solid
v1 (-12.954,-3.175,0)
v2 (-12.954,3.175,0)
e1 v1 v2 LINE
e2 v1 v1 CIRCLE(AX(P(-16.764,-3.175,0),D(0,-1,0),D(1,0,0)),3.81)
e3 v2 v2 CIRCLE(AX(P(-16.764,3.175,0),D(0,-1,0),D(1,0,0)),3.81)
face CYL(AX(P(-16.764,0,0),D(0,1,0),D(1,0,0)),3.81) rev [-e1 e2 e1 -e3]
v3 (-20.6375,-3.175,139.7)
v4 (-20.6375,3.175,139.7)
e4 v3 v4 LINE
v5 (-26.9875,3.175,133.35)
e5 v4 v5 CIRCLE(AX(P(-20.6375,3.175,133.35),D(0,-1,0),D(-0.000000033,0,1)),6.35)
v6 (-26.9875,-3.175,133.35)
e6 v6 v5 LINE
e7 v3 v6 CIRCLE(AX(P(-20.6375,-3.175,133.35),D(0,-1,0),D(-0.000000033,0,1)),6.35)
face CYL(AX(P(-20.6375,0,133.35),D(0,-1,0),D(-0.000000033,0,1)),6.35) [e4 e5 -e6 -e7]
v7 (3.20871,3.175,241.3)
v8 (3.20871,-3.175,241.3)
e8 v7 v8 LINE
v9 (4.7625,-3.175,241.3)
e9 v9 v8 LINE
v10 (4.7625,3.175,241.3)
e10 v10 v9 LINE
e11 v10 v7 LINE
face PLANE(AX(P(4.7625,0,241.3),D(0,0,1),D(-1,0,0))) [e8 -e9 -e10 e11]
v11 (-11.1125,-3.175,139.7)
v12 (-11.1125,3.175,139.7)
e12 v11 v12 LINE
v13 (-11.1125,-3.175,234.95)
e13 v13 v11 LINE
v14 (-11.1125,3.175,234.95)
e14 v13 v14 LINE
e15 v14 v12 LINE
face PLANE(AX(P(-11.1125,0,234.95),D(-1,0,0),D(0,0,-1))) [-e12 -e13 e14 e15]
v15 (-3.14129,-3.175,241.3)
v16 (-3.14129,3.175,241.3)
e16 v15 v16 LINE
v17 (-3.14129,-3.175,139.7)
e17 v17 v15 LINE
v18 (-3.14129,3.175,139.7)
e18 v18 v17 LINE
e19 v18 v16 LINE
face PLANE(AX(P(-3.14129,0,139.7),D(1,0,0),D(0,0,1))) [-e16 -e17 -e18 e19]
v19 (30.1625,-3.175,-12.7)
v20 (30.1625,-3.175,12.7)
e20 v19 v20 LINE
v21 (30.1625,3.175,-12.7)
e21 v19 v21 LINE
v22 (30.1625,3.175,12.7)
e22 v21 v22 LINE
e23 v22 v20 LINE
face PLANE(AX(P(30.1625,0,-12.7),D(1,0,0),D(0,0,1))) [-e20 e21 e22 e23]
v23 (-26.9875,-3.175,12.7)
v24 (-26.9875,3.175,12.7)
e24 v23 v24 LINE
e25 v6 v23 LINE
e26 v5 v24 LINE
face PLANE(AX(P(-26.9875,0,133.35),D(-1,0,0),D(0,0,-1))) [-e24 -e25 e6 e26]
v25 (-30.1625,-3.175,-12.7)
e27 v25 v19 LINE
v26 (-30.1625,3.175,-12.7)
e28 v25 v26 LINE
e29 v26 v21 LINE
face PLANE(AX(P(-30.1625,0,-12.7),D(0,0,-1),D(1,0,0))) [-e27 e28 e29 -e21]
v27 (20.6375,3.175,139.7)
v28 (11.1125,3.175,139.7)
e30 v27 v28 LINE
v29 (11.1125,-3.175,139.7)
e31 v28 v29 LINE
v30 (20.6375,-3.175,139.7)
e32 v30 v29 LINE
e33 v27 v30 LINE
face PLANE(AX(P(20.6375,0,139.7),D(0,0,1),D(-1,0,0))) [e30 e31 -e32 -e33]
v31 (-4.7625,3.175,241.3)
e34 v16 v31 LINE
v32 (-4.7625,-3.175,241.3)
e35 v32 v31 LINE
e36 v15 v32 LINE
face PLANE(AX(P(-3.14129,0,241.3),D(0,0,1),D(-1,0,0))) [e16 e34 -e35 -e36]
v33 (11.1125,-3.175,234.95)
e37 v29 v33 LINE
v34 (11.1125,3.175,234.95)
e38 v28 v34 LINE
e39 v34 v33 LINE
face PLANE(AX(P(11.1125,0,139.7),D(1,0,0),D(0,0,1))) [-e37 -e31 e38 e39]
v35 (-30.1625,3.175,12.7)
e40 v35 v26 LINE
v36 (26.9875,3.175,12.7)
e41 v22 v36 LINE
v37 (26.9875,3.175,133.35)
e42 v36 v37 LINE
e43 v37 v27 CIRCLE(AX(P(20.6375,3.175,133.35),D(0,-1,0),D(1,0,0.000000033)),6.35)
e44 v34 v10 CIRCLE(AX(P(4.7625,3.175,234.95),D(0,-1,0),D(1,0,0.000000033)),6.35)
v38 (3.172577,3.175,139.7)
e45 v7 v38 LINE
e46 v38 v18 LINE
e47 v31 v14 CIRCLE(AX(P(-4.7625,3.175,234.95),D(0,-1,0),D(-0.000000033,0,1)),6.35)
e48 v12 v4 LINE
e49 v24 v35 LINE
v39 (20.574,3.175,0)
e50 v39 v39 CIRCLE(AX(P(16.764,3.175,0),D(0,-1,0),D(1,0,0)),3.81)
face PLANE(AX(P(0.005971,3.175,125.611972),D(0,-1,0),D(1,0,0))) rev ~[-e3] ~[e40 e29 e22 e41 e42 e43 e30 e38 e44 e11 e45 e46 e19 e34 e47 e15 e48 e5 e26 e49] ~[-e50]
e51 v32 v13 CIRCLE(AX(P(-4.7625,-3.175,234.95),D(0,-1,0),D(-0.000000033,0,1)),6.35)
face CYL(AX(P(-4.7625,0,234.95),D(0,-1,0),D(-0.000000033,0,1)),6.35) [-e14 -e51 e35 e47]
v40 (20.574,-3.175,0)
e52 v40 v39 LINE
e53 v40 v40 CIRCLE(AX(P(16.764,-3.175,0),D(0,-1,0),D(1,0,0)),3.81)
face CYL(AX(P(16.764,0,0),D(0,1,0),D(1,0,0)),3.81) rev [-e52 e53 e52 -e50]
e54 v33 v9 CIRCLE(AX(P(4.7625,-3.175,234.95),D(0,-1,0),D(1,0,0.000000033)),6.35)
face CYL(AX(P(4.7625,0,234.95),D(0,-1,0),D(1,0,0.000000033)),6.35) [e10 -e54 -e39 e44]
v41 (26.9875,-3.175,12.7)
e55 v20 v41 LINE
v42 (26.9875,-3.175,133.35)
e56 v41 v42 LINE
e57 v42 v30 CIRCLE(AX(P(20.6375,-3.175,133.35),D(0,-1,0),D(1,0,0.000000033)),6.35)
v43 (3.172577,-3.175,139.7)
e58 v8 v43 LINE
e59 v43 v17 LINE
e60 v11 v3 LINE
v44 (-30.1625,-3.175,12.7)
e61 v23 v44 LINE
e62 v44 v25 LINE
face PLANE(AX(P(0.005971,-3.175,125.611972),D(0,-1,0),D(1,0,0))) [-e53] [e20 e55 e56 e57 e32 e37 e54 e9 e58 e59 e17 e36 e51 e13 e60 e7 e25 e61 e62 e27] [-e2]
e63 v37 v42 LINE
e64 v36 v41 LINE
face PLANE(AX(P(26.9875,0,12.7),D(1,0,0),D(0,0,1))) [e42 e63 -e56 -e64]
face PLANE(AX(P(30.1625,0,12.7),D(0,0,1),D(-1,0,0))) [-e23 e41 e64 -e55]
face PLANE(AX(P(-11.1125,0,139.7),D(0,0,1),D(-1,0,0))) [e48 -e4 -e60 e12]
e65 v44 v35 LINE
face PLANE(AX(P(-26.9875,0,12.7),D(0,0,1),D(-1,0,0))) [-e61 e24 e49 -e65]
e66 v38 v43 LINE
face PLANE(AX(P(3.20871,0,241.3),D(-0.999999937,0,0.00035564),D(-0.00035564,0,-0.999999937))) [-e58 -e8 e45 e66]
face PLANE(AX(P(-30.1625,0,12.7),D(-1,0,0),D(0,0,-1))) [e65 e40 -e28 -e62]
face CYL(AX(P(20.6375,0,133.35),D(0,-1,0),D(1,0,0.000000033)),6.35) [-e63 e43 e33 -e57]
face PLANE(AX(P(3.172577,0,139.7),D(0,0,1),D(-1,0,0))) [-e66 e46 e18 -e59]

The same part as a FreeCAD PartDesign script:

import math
import FreeCAD as App
import Part
import Sketcher
from FreeCAD import Vector
Q = App.Units.Quantity

doc = App.newDocument("Part")
body = doc.addObject("PartDesign::Body", "Body")

sketch1 = body.newObject("Sketcher::SketchObject", "Sketch")
sketch1.AttachmentSupport = (doc.getObject("XZ_Plane"), [""])
sketch1.MapMode = "FlatFace"
sketch1.addGeometry(Part.LineSegment(Vector(30.2, -12.7, 0), Vector(30.2, 12.7, 0)), False)
sketch1.addGeometry(Part.LineSegment(Vector(30.2, 12.7, 0), Vector(27, 12.7, 0)), False)
sketch1.addGeometry(Part.LineSegment(Vector(27, 12.7, 0), Vector(27, 133.3, 0)), False)
sketch1.addGeometry(Part.ArcOfCircle(Part.Circle(Vector(20.6, 133.3, 0), Vector(0, 0, 1), 6.4), math.radians(0), math.radians(90)), False)
sketch1.addGeometry(Part.LineSegment(Vector(20.6, 139.7, 0), Vector(11.1, 139.7, 0)), False)
sketch1.addGeometry(Part.LineSegment(Vector(11.1, 139.7, 0), Vector(11.1, 234.9, 0)), False)
sketch1.addGeometry(Part.ArcOfCircle(Part.Circle(Vector(4.8, 234.9, 0), Vector(0, 0, 1), 6.4), math.radians(0), math.radians(90)), False)
sketch1.addGeometry(Part.LineSegment(Vector(4.8, 241.3, 0), Vector(3.2, 241.3, 0)), False)
sketch1.addGeometry(Part.LineSegment(Vector(3.2, 241.3, 0), Vector(3.2, 139.7, 0)), False)
sketch1.addGeometry(Part.LineSegment(Vector(3.2, 139.7, 0), Vector(-3.1, 139.7, 0)), False)
sketch1.addGeometry(Part.LineSegment(Vector(-3.1, 139.7, 0), Vector(-3.1, 241.3, 0)), False)
sketch1.addGeometry(Part.LineSegment(Vector(-3.1, 241.3, 0), Vector(-4.8, 241.3, 0)), False)
sketch1.addGeometry(Part.ArcOfCircle(Part.Circle(Vector(-4.8, 234.9, 0), Vector(0, 0, 1), 6.4), math.radians(90), math.radians(180)), False)
sketch1.addGeometry(Part.LineSegment(Vector(-11.1, 234.9, 0), Vector(-11.1, 139.7, 0)), False)
sketch1.addGeometry(Part.LineSegment(Vector(-11.1, 139.7, 0), Vector(-20.6, 139.7, 0)), False)
sketch1.addGeometry(Part.ArcOfCircle(Part.Circle(Vector(-20.6, 133.3, 0), Vector(0, 0, 1), 6.4), math.radians(90), math.radians(180)), False)
sketch1.addGeometry(Part.LineSegment(Vector(-27, 133.3, 0), Vector(-27, 12.7, 0)), False)
sketch1.addGeometry(Part.LineSegment(Vector(-27, 12.7, 0), Vector(-30.2, 12.7, 0)), False)
sketch1.addGeometry(Part.LineSegment(Vector(-30.2, 12.7, 0), Vector(-30.2, -12.7, 0)), False)
sketch1.addGeometry(Part.LineSegment(Vector(-30.2, -12.7, 0), Vector(30.2, -12.7, 0)), False)
sketch1.addGeometry(Part.Circle(Vector(-16.8, 0, 0), Vector(0, 0, 1), 3.8), False)
sketch1.addGeometry(Part.Circle(Vector(16.8, 0, 0), Vector(0, 0, 1), 3.8), False)
sketch1.addConstraint(Sketcher.Constraint("Coincident", 0, 2, 1, 1))
sketch1.addConstraint(Sketcher.Constraint("Coincident", 1, 2, 2, 1))
sketch1.addConstraint(Sketcher.Constraint("Tangent", 2, 2, 3, 1))
sketch1.addConstraint(Sketcher.Constraint("Tangent", 3, 2, 4, 1))
sketch1.addConstraint(Sketcher.Constraint("Coincident", 4, 2, 5, 1))
sketch1.addConstraint(Sketcher.Constraint("Tangent", 5, 2, 6, 1))
sketch1.addConstraint(Sketcher.Constraint("Tangent", 6, 2, 7, 1))
sketch1.addConstraint(Sketcher.Constraint("Coincident", 7, 2, 8, 1))
sketch1.addConstraint(Sketcher.Constraint("Coincident", 8, 2, 9, 1))
sketch1.addConstraint(Sketcher.Constraint("Coincident", 9, 2, 10, 1))
sketch1.addConstraint(Sketcher.Constraint("Coincident", 10, 2, 11, 1))
sketch1.addConstraint(Sketcher.Constraint("Tangent", 11, 2, 12, 1))
sketch1.addConstraint(Sketcher.Constraint("Tangent", 12, 2, 13, 1))
sketch1.addConstraint(Sketcher.Constraint("Coincident", 13, 2, 14, 1))
sketch1.addConstraint(Sketcher.Constraint("Tangent", 14, 2, 15, 1))
sketch1.addConstraint(Sketcher.Constraint("Tangent", 15, 2, 16, 1))
sketch1.addConstraint(Sketcher.Constraint("Coincident", 16, 2, 17, 1))
sketch1.addConstraint(Sketcher.Constraint("Coincident", 17, 2, 18, 1))
sketch1.addConstraint(Sketcher.Constraint("Coincident", 18, 2, 19, 1))
sketch1.addConstraint(Sketcher.Constraint("Coincident", 19, 2, 0, 1))
sketch1.addConstraint(Sketcher.Constraint("Vertical", 0))
sketch1.addConstraint(Sketcher.Constraint("Horizontal", 1))
sketch1.addConstraint(Sketcher.Constraint("Vertical", 2))
sketch1.addConstraint(Sketcher.Constraint("Horizontal", 4))
sketch1.addConstraint(Sketcher.Constraint("Vertical", 5))
sketch1.addConstraint(Sketcher.Constraint("Horizontal", 7))
sketch1.addConstraint(Sketcher.Constraint("Horizontal", 9))
sketch1.addConstraint(Sketcher.Constraint("Vertical", 10))
sketch1.addConstraint(Sketcher.Constraint("Horizontal", 11))
sketch1.addConstraint(Sketcher.Constraint("Vertical", 13))
sketch1.addConstraint(Sketcher.Constraint("Horizontal", 14))
sketch1.addConstraint(Sketcher.Constraint("Vertical", 16))
sketch1.addConstraint(Sketcher.Constraint("Horizontal", 17))
sketch1.addConstraint(Sketcher.Constraint("Vertical", 18))
sketch1.addConstraint(Sketcher.Constraint("Horizontal", 19))
sketch1.addConstraint(Sketcher.Constraint("Equal", 3, 6))
sketch1.addConstraint(Sketcher.Constraint("Equal", 6, 12))
sketch1.addConstraint(Sketcher.Constraint("Equal", 12, 15))
sketch1.addConstraint(Sketcher.Constraint("Equal", 20, 21))
sketch1.addConstraint(Sketcher.Constraint("Symmetric", 20, 3, 21, 3, -1, 1))
sketch1.addConstraint(Sketcher.Constraint("Symmetric", 0, 2, 18, 2, -1, 1))
sketch1.addConstraint(Sketcher.Constraint("Symmetric", 6, 3, 12, 3, -2))
sketch1.addConstraint(Sketcher.Constraint("Symmetric", 3, 3, 15, 3, -2))
sketch1.addConstraint(Sketcher.Constraint("PointOnObject", 20, 3, -1))
sketch1.addConstraint(Sketcher.Constraint("Horizontal", 4, 2, 8, 2))
sketch1.addConstraint(Sketcher.Constraint("Horizontal", 1, 2, 16, 2))
sketch1.addConstraint(Sketcher.Constraint("Diameter", 20, Q("0.3 in")))
sketch1.addConstraint(Sketcher.Constraint("DistanceY", 0, 1, 0, 2, Q("1 in")))
sketch1.addConstraint(Sketcher.Constraint("DistanceY", 10, 1, 10, 2, Q("4 in")))
sketch1.addConstraint(Sketcher.Constraint("Radius", 3, Q("0.25 in")))
sketch1.addConstraint(Sketcher.Constraint("DistanceX", 12, 3, 3, 3, Q("1 in")))
sketch1.addConstraint(Sketcher.Constraint("DistanceX", 15, 3, 0, 2, Q("2 in")))
sketch1.addConstraint(Sketcher.Constraint("DistanceY", 2, 1, 2, 2, Q("4.75 in")))
sketch1.addConstraint(Sketcher.Constraint("DistanceX", 1, 2, 1, 1, Q("0.125 in")))
sketch1.addConstraint(Sketcher.Constraint("DistanceX", 20, 3, -1, 1, Q("0.66 in")))
sketch1.addConstraint(Sketcher.Constraint("DistanceX", 10, 2, 7, 2, Q("0.25 in")))
sketch1.addConstraint(Sketcher.Constraint("DistanceX", 7, 2, 7, 1, 1.55379))
sketch1.addConstraint(Sketcher.Constraint("DistanceX", 9, 2, 9, 1, 6.313867))
pad1 = body.newObject("PartDesign::Pad", "Pad")
pad1.Profile = sketch1
pad1.Length = Q("0.25 in")
pad1.Midplane = True

doc.recompute()
